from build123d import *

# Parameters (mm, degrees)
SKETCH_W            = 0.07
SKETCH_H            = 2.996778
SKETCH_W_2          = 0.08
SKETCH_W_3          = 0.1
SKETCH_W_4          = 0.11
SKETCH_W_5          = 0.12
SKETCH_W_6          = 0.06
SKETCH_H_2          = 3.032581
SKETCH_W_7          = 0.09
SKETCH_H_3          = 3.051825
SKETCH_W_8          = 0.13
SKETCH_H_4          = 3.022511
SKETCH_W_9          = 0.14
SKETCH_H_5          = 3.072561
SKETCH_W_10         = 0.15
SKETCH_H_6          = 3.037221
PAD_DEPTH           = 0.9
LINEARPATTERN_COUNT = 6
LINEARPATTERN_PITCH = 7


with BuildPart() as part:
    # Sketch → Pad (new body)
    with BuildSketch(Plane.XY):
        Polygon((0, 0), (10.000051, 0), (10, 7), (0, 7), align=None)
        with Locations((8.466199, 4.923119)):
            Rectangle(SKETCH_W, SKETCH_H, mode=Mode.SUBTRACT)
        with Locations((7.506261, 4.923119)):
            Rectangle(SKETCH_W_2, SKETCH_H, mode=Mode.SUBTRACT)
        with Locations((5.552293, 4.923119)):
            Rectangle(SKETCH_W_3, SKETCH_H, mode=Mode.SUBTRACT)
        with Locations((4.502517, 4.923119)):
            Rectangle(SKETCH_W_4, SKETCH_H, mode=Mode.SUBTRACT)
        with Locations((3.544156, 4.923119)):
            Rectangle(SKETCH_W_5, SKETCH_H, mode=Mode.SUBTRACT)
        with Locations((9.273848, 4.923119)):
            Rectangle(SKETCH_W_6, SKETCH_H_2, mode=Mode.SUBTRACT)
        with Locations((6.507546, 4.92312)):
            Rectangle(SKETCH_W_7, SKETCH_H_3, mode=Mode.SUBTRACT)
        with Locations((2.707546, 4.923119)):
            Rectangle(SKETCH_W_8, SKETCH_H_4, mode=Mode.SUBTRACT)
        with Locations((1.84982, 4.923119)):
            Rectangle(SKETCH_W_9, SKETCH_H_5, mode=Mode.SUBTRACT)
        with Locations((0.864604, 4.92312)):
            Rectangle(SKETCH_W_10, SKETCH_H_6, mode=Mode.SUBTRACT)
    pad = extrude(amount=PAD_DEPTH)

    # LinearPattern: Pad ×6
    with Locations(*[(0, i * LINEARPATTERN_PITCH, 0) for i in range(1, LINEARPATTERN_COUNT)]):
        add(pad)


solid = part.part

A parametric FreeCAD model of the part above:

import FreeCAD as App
import Part
import Sketcher
from FreeCAD import Vector
Q = App.Units.Quantity

doc = App.newDocument("Part")
body = doc.addObject("PartDesign::Body", "Body")

# Sketch on XY plane
sketch1 = body.newObject("Sketcher::SketchObject", "Sketch")
sketch1.AttachmentSupport = (doc.getObject("XY_Plane"), [""])
sketch1.MapMode = "FlatFace"
sketch1.addGeometry(Part.LineSegment(Vector(0, 0, 0), Vector(10, 0, 0)), False)
sketch1.addGeometry(Part.LineSegment(Vector(10, 0, 0), Vector(10, 7, 0)), False)
sketch1.addGeometry(Part.LineSegment(Vector(10, 7, 0), Vector(0, 7, 0)), False)
sketch1.addGeometry(Part.LineSegment(Vector(0, 7, 0), Vector(0, 0, 0)), False)
sketch1.addGeometry(Part.LineSegment(Vector(0.94, 3.4, 0), Vector(0.79, 3.4, 0)), False)
sketch1.addGeometry(Part.LineSegment(Vector(0.79, 3.4, 0), Vector(0.79, 6.44, 0)), False)
sketch1.addGeometry(Part.LineSegment(Vector(0.79, 6.44, 0), Vector(0.94, 6.44, 0)), False)
sketch1.addGeometry(Part.LineSegment(Vector(0.94, 6.44, 0), Vector(0.94, 3.4, 0)), False)
sketch1.addGeometry(Part.LineSegment(Vector(1.92, 3.39, 0), Vector(1.78, 3.39, 0)), False)
sketch1.addGeometry(Part.LineSegment(Vector(1.78, 3.39, 0), Vector(1.78, 6.46, 0)), False)
sketch1.addGeometry(Part.LineSegment(Vector(1.78, 6.46, 0), Vector(1.92, 6.46, 0)), False)
sketch1.addGeometry(Part.LineSegment(Vector(1.92, 6.46, 0), Vector(1.92, 3.39, 0)), False)
sketch1.addGeometry(Part.LineSegment(Vector(2.77, 3.41, 0), Vector(2.64, 3.41, 0)), False)
sketch1.addGeometry(Part.LineSegment(Vector(2.64, 3.41, 0), Vector(2.64, 6.43, 0)), False)
sketch1.addGeometry(Part.LineSegment(Vector(2.64, 6.43, 0), Vector(2.77, 6.43, 0)), False)
sketch1.addGeometry(Part.LineSegment(Vector(2.77, 6.43, 0), Vector(2.77, 3.41, 0)), False)
sketch1.addGeometry(Part.LineSegment(Vector(3.6, 3.42, 0), Vector(3.48, 3.42, 0)), False)
sketch1.addGeometry(Part.LineSegment(Vector(3.48, 3.42, 0), Vector(3.48, 6.42, 0)), False)
sketch1.addGeometry(Part.LineSegment(Vector(3.48, 6.42, 0), Vector(3.6, 6.42, 0)), False)
sketch1.addGeometry(Part.LineSegment(Vector(3.6, 6.42, 0), Vector(3.6, 3.42, 0)), False)
sketch1.addGeometry(Part.LineSegment(Vector(4.56, 3.42, 0), Vector(4.45, 3.42, 0)), False)
sketch1.addGeometry(Part.LineSegment(Vector(4.45, 3.42, 0), Vector(4.45, 6.42, 0)), False)
sketch1.addGeometry(Part.LineSegment(Vector(4.45, 6.42, 0), Vector(4.56, 6.42, 0)), False)
sketch1.addGeometry(Part.LineSegment(Vector(4.56, 6.42, 0), Vector(4.56, 3.42, 0)), False)
sketch1.addGeometry(Part.LineSegment(Vector(5.6, 3.42, 0), Vector(5.5, 3.42, 0)), False)
sketch1.addGeometry(Part.LineSegment(Vector(5.5, 3.42, 0), Vector(5.5, 6.42, 0)), False)
sketch1.addGeometry(Part.LineSegment(Vector(5.5, 6.42, 0), Vector(5.6, 6.42, 0)), False)
sketch1.addGeometry(Part.LineSegment(Vector(5.6, 6.42, 0), Vector(5.6, 3.42, 0)), False)
sketch1.addGeometry(Part.LineSegment(Vector(6.55, 3.4, 0), Vector(6.46, 3.4, 0)), False)
sketch1.addGeometry(Part.LineSegment(Vector(6.46, 3.4, 0), Vector(6.46, 6.45, 0)), False)
sketch1.addGeometry(Part.LineSegment(Vector(6.46, 6.45, 0), Vector(6.55, 6.45, 0)), False)
sketch1.addGeometry(Part.LineSegment(Vector(6.55, 6.45, 0), Vector(6.55, 3.4, 0)), False)
sketch1.addGeometry(Part.LineSegment(Vector(7.55, 3.42, 0), Vector(7.47, 3.42, 0)), False)
sketch1.addGeometry(Part.LineSegment(Vector(7.47, 3.42, 0), Vector(7.47, 6.42, 0)), False)
sketch1.addGeometry(Part.LineSegment(Vector(7.47, 6.42, 0), Vector(7.55, 6.42, 0)), False)
sketch1.addGeometry(Part.LineSegment(Vector(7.55, 6.42, 0), Vector(7.55, 3.42, 0)), False)
sketch1.addGeometry(Part.LineSegment(Vector(8.5, 3.42, 0), Vector(8.43, 3.42, 0)), False)
sketch1.addGeometry(Part.LineSegment(Vector(8.43, 3.42, 0), Vector(8.43, 6.42, 0)), False)
sketch1.addGeometry(Part.LineSegment(Vector(8.43, 6.42, 0), Vector(8.5, 6.42, 0)), False)
sketch1.addGeometry(Part.LineSegment(Vector(8.5, 6.42, 0), Vector(8.5, 3.42, 0)), False)
sketch1.addGeometry(Part.LineSegment(Vector(9.3, 3.41, 0), Vector(9.24, 3.41, 0)), False)
sketch1.addGeometry(Part.LineSegment(Vector(9.24, 3.41, 0), Vector(9.24, 6.44, 0)), False)
sketch1.addGeometry(Part.LineSegment(Vector(9.24, 6.44, 0), Vector(9.3, 6.44, 0)), False)
sketch1.addGeometry(Part.LineSegment(Vector(9.3, 6.44, 0), Vector(9.3, 3.41, 0)), False)
sketch1.addConstraint(Sketcher.Constraint("Coincident", 0, 2, 1, 1))
sketch1.addConstraint(Sketcher.Constraint("Coincident", 1, 2, 2, 1))
sketch1.addConstraint(Sketcher.Constraint("Coincident", 2, 2, 3, 1))
sketch1.addConstraint(Sketcher.Constraint("Coincident", 3, 2, 0, 1))
sketch1.addConstraint(Sketcher.Constraint("Coincident", 4, 2, 5, 1))
sketch1.addConstraint(Sketcher.Constraint("Coincident", 5, 2, 6, 1))
sketch1.addConstraint(Sketcher.Constraint("Coincident", 6, 2, 7, 1))
sketch1.addConstraint(Sketcher.Constraint("Coincident", 7, 2, 4, 1))
sketch1.addConstraint(Sketcher.Constraint("Coincident", 8, 2, 9, 1))
sketch1.addConstraint(Sketcher.Constraint("Coincident", 9, 2, 10, 1))
sketch1.addConstraint(Sketcher.Constraint("Coincident", 10, 2, 11, 1))
sketch1.addConstraint(Sketcher.Constraint("Coincident", 11, 2, 8, 1))
sketch1.addConstraint(Sketcher.Constraint("Coincident", 12, 2, 13, 1))
sketch1.addConstraint(Sketcher.Constraint("Coincident", 13, 2, 14, 1))
sketch1.addConstraint(Sketcher.Constraint("Coincident", 14, 2, 15, 1))
sketch1.addConstraint(Sketcher.Constraint("Coincident", 15, 2, 12, 1))
sketch1.addConstraint(Sketcher.Constraint("Coincident", 16, 2, 17, 1))
sketch1.addConstraint(Sketcher.Constraint("Coincident", 17, 2, 18, 1))
sketch1.addConstraint(Sketcher.Constraint("Coincident", 18, 2, 19, 1))
sketch1.addConstraint(Sketcher.Constraint("Coincident", 19, 2, 16, 1))
sketch1.addConstraint(Sketcher.Constraint("Coincident", 20, 2, 21, 1))
sketch1.addConstraint(Sketcher.Constraint("Coincident", 21, 2, 22, 1))
sketch1.addConstraint(Sketcher.Constraint("Coincident", 22, 2, 23, 1))
sketch1.addConstraint(Sketcher.Constraint("Coincident", 23, 2, 20, 1))
sketch1.addConstraint(Sketcher.Constraint("Coincident", 24, 2, 25, 1))
sketch1.addConstraint(Sketcher.Constraint("Coincident", 25, 2, 26, 1))
sketch1.addConstraint(Sketcher.Constraint("Coincident", 26, 2, 27, 1))
sketch1.addConstraint(Sketcher.Constraint("Coincident", 27, 2, 24, 1))
sketch1.addConstraint(Sketcher.Constraint("Coincident", 28, 2, 29, 1))
sketch1.addConstraint(Sketcher.Constraint("Coincident", 29, 2, 30, 1))
sketch1.addConstraint(Sketcher.Constraint("Coincident", 30, 2, 31, 1))
sketch1.addConstraint(Sketcher.Constraint("Coincident", 31, 2, 28, 1))
sketch1.addConstraint(Sketcher.Constraint("Coincident", 32, 2, 33, 1))
sketch1.addConstraint(Sketcher.Constraint("Coincident", 33, 2, 34, 1))
sketch1.addConstraint(Sketcher.Constraint("Coincident", 34, 2, 35, 1))
sketch1.addConstraint(Sketcher.Constraint("Coincident", 35, 2, 32, 1))
sketch1.addConstraint(Sketcher.Constraint("Coincident", 36, 2, 37, 1))
sketch1.addConstraint(Sketcher.Constraint("Coincident", 37, 2, 38, 1))
sketch1.addConstraint(Sketcher.Constraint("Coincident", 38, 2, 39, 1))
sketch1.addConstraint(Sketcher.Constraint("Coincident", 39, 2, 36, 1))
sketch1.addConstraint(Sketcher.Constraint("Coincident", 40, 2, 41, 1))
sketch1.addConstraint(Sketcher.Constraint("Coincident", 41, 2, 42, 1))
sketch1.addConstraint(Sketcher.Constraint("Coincident", 42, 2, 43, 1))
sketch1.addConstraint(Sketcher.Constraint("Coincident", 43, 2, 40, 1))
sketch1.addConstraint(Sketcher.Constraint("Horizontal", 0))
sketch1.addConstraint(Sketcher.Constraint("Horizontal", 2))
sketch1.addConstraint(Sketcher.Constraint("Vertical", 3))
sketch1.addConstraint(Sketcher.Constraint("Horizontal", 4))
sketch1.addConstraint(Sketcher.Constraint("Vertical", 5))
sketch1.addConstraint(Sketcher.Constraint("Horizontal", 6))
sketch1.addConstraint(Sketcher.Constraint("Vertical", 7))
sketch1.addConstraint(Sketcher.Constraint("Horizontal", 8))
sketch1.addConstraint(Sketcher.Constraint("Vertical", 9))
sketch1.addConstraint(Sketcher.Constraint("Horizontal", 10))
sketch1.addConstraint(Sketcher.Constraint("Vertical", 11))
sketch1.addConstraint(Sketcher.Constraint("Horizontal", 12))
sketch1.addConstraint(Sketcher.Constraint("Vertical", 13))
sketch1.addConstraint(Sketcher.Constraint("Horizontal", 14))
sketch1.addConstraint(Sketcher.Constraint("Vertical", 15))
sketch1.addConstraint(Sketcher.Constraint("Horizontal", 16))
sketch1.addConstraint(Sketcher.Constraint("Vertical", 17))
sketch1.addConstraint(Sketcher.Constraint("Horizontal", 18))
sketch1.addConstraint(Sketcher.Constraint("Vertical", 19))
sketch1.addConstraint(Sketcher.Constraint("Horizontal", 20))
sketch1.addConstraint(Sketcher.Constraint("Vertical", 21))
sketch1.addConstraint(Sketcher.Constraint("Horizontal", 22))
sketch1.addConstraint(Sketcher.Constraint("Vertical", 23))
sketch1.addConstraint(Sketcher.Constraint("Horizontal", 24))
sketch1.addConstraint(Sketcher.Constraint("Vertical", 25))
sketch1.addConstraint(Sketcher.Constraint("Horizontal", 26))
sketch1.addConstraint(Sketcher.Constraint("Vertical", 27))
sketch1.addConstraint(Sketcher.Constraint("Horizontal", 28))
sketch1.addConstraint(Sketcher.Constraint("Vertical", 29))
sketch1.addConstraint(Sketcher.Constraint("Horizontal", 30))
sketch1.addConstraint(Sketcher.Constraint("Vertical", 31))
sketch1.addConstraint(Sketcher.Constraint("Horizontal", 32))
sketch1.addConstraint(Sketcher.Constraint("Vertical", 33))
sketch1.addConstraint(Sketcher.Constraint("Horizontal", 34))
sketch1.addConstraint(Sketcher.Constraint("Vertical", 35))
sketch1.addConstraint(Sketcher.Constraint("Horizontal", 36))
sketch1.addConstraint(Sketcher.Constraint("Vertical", 37))
sketch1.addConstraint(Sketcher.Constraint("Horizontal", 38))
sketch1.addConstraint(Sketcher.Constraint("Vertical", 39))
sketch1.addConstraint(Sketcher.Constraint("Horizontal", 40))
sketch1.addConstraint(Sketcher.Constraint("Vertical", 41))
sketch1.addConstraint(Sketcher.Constraint("Horizontal", 42))
sketch1.addConstraint(Sketcher.Constraint("Vertical", 43))
sketch1.addConstraint(Sketcher.Constraint("Coincident", 3, 2, -1, 1))
sketch1.addConstraint(Sketcher.Constraint("Horizontal", 19, 2, 20, 2))
sketch1.addConstraint(Sketcher.Constraint("Horizontal", 18, 2, 21, 2))
sketch1.addConstraint(Sketcher.Constraint("Horizontal", 23, 2, 24, 2))
sketch1.addConstraint(Sketcher.Constraint("Horizontal", 22, 2, 25, 2))
sketch1.addConstraint(Sketcher.Constraint("Horizontal", 27, 2, 32, 2))
sketch1.addConstraint(Sketcher.Constraint("Horizontal", 26, 2, 33, 2))
sketch1.addConstraint(Sketcher.Constraint("Horizontal", 35, 2, 36, 2))
sketch1.addConstraint(Sketcher.Constraint("Horizontal", 34, 2, 37, 2))
sketch1.addConstraint(Sketcher.Constraint("DistanceX", 2, 2, 2, 1, Q("10 mm")))
sketch1.addConstraint(Sketcher.Constraint("DistanceY", 3, 2, 3, 1, Q("7 mm")))
sketch1.addConstraint(Sketcher.Constraint("DistanceX", 24, 2, 24, 1, Q("0.1 mm")))
sketch1.addConstraint(Sketcher.Constraint("DistanceX", 4, 2, 4, 1, Q("0.15 mm")))
sketch1.addConstraint(Sketcher.Constraint("DistanceX", 8, 2, 8, 1, Q("0.14 mm")))
sketch1.addConstraint(Sketcher.Constraint("DistanceX", 12, 2, 12, 1, Q("0.13 mm")))
sketch1.addConstraint(Sketcher.Constraint("DistanceX", 16, 2, 16, 1, Q("0.12 mm")))
sketch1.addConstraint(Sketcher.Constraint("DistanceX", 20, 2, 20, 1, Q("0.11 mm")))
sketch1.addConstraint(Sketcher.Constraint("DistanceX", 28, 2, 28, 1, Q("0.09 mm")))
sketch1.addConstraint(Sketcher.Constraint("DistanceX", 32, 2, 32, 1, Q("0.08 mm")))
sketch1.addConstraint(Sketcher.Constraint("DistanceX", 36, 2, 36, 1, Q("0.07 mm")))
sketch1.addConstraint(Sketcher.Constraint("DistanceX", 40, 2, 40, 1, Q("0.06 mm")))
sketch1.addConstraint(Sketcher.Constraint("DistanceX", 0, 1, 0, 2, Q("10.000051 mm")))
sketch1.addConstraint(Sketcher.Constraint("DistanceY", 5, 1, 5, 2, Q("3.037221 mm")))
sketch1.addConstraint(Sketcher.Constraint("DistanceY", 9, 1, 9, 2, Q("3.072561 mm")))
sketch1.addConstraint(Sketcher.Constraint("DistanceY", 13, 1, 13, 2, Q("3.022511 mm")))
sketch1.addConstraint(Sketcher.Constraint("DistanceY", 17, 1, 17, 2, Q("2.996778 mm")))
sketch1.addConstraint(Sketcher.Constraint("DistanceY", 41, 1, 41, 2, Q("3.032581 mm")))
sketch1.addConstraint(Sketcher.Constraint("DistanceY", -1, 1, 9, 2, Q("6.459399 mm")))
sketch1.addConstraint(Sketcher.Constraint("DistanceX", -1, 1, 36, 2, Q("8.431199 mm")))
sketch1.addConstraint(Sketcher.Constraint("DistanceY", 40, 2, 39, 2, Q("0.017901 mm")))
sketch1.addConstraint(Sketcher.Constraint("DistanceX", 31, 2, 40, 2, Q("2.691302 mm")))
sketch1.addConstraint(Sketcher.Constraint("DistanceY", 29, 1, 29, 2, Q("3.051825 mm")))
sketch1.addConstraint(Sketcher.Constraint("DistanceY", -1, 1, 4, 2, Q("3.40451 mm")))
sketch1.addConstraint(Sketcher.Constraint("DistanceX", -1, 1, 8, 2, Q("1.77982 mm")))
sketch1.addConstraint(Sketcher.Constraint("DistanceY", -1, 1, 16, 2, Q("3.42473 mm")))
sketch1.addConstraint(Sketcher.Constraint("DistanceX", -1, 1, 32, 2, Q("7.466261 mm")))
sketch1.addConstraint(Sketcher.Constraint("DistanceX", 7, 2, 12, 2, Q("1.702942 mm")))
sketch1.addConstraint(Sketcher.Constraint("DistanceX", 15, 2, 16, 2, Q("0.71161 mm")))
sketch1.addConstraint(Sketcher.Constraint("DistanceX", 19, 2, 20, 2, Q("0.843361 mm")))
sketch1.addConstraint(Sketcher.Constraint("DistanceX", 23, 2, 28, 2, Q("1.905029 mm")))
sketch1.addConstraint(Sketcher.Constraint("DistanceX", 24, 2, 32, 2, Q("1.963968 mm")))
sketch1.addConstraint(Sketcher.Constraint("DistanceX", 39, 2, 40, 2, Q("0.742649 mm")))
sketch1.addConstraint(Sketcher.Constraint("DistanceY", 31, 2, 40, 2, Q("0.009621 mm")))
sketch1.addConstraint(Sketcher.Constraint("DistanceY", -1, 1, 12, 2, Q("3.411863 mm")))
pad1 = body.newObject("PartDesign::Pad", "Pad")
pad1.Profile = sketch1
pad1.Length = 0.9
doc.recompute()

linearpattern = body.newObject("PartDesign::LinearPattern", "LinearPattern")
linearpattern.Originals = [pad1]
linearpattern.Direction = (doc.getObject("Y_Axis"), [""])
linearpattern.Mode = "offset"
linearpattern.Offset = 7
linearpattern.Occurrences = 6
body.Tip = linearpattern

doc.recompute()
